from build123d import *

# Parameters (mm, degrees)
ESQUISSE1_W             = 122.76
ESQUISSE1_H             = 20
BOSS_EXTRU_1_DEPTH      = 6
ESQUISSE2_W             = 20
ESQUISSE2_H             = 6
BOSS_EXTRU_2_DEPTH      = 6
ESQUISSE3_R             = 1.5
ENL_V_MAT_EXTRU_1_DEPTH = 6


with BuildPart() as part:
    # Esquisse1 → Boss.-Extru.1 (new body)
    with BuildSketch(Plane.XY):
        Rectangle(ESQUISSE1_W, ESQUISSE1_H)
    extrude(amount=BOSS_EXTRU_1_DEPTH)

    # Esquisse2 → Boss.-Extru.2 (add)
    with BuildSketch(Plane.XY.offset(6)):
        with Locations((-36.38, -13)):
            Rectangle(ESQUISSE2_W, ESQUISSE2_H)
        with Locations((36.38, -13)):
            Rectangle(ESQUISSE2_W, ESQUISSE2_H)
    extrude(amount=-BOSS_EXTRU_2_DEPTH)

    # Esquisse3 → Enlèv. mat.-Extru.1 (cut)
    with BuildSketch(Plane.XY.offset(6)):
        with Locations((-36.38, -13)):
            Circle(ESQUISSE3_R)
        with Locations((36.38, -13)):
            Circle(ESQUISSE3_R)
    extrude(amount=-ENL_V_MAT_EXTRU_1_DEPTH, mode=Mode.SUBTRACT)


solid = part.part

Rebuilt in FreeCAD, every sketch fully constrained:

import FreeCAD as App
import Part
import Sketcher

doc = App.newDocument("Part")
params = doc.addObject("Spreadsheet::Sheet", "Params")
for row, (alias, value) in enumerate([
    ("sketch1_height", "20 mm"),
    ("sketch1_width", "122.76 mm"),
    ("pad1_length", "6 mm"),
    ("sketch2_width", "20 mm"),
    ("sketch2_height", "6 mm"),
    ("pad2_length", "6 mm"),
    ("sketch3_diameter", "3 mm"),
    ("pocket1_length", "6 mm"),
], start=1):
    params.set(f"A{row}", alias)
    params.set(f"B{row}", "=" + value)
    params.setAlias(f"B{row}", alias)

body = doc.addObject("PartDesign::Body", "Body")

# Sketch on XY plane
sketch1 = body.newObject("Sketcher::SketchObject", "Sketch")
sketch1.AttachmentSupport = (doc.getObject("XY_Plane"), [""])
sketch1.MapMode = "FlatFace"
sketch1.addGeometry([
    Part.LineSegment(App.Vector(-61, 10, 0), App.Vector(-61, -10, 0)),
    Part.LineSegment(App.Vector(-61, -10, 0), App.Vector(61, -10, 0)),
    Part.LineSegment(App.Vector(61, -10, 0), App.Vector(61, 10, 0)),
    Part.LineSegment(App.Vector(61, 10, 0), App.Vector(-61, 10, 0)),
], False)
sketch1.addConstraint([
    Sketcher.Constraint("Coincident", 0, 2, 1, 1),
    Sketcher.Constraint("Coincident", 1, 2, 2, 1),
    Sketcher.Constraint("Coincident", 2, 2, 3, 1),
    Sketcher.Constraint("Coincident", 3, 2, 0, 1),
    Sketcher.Constraint("Vertical", 0),
    Sketcher.Constraint("Horizontal", 1),
    Sketcher.Constraint("Vertical", 2),
    Sketcher.Constraint("Horizontal", 3),
    Sketcher.Constraint("Symmetric", 0, 2, 2, 2, -1, 1),
    Sketcher.Constraint("DistanceY", 0, 2, 0, 1, 20.0),
    Sketcher.Constraint("DistanceX", 1, 1, 1, 2, 122.76),
])
sketch1.setExpression("Constraints[9]", "Params.sketch1_height")
sketch1.setExpression("Constraints[10]", "Params.sketch1_width")
pad1 = body.newObject("PartDesign::Pad", "Pad")
pad1.Profile = sketch1
pad1.setExpression("Length", "Params.pad1_length")

# Sketch on XY plane
sketch2 = body.newObject("Sketcher::SketchObject", "Sketch001")
sketch2.AttachmentSupport = (doc.getObject("XY_Plane"), [""])
sketch2.MapMode = "FlatFace"
sketch2.AttachmentOffset = App.Placement(App.Vector(0, 0, 6), App.Rotation())
sketch2.addGeometry([
    Part.LineSegment(App.Vector(-46, -10, 0), App.Vector(-46, -16, 0)),  # 0
    Part.LineSegment(App.Vector(-46, -16, 0), App.Vector(-26, -16, 0)),  # 1
    Part.LineSegment(App.Vector(-26, -16, 0), App.Vector(-26, -10, 0)),  # 2
    Part.LineSegment(App.Vector(-26, -10, 0), App.Vector(-46, -10, 0)),  # 3
    Part.LineSegment(App.Vector(26, -10, 0), App.Vector(26, -16, 0)),  # 4
    Part.LineSegment(App.Vector(26, -16, 0), App.Vector(46, -16, 0)),  # 5
    Part.LineSegment(App.Vector(46, -16, 0), App.Vector(46, -10, 0)),  # 6
    Part.LineSegment(App.Vector(46, -10, 0), App.Vector(26, -10, 0)),  # 7
], False)
sketch2.addConstraint([
    Sketcher.Constraint("Coincident", 0, 2, 1, 1),
    Sketcher.Constraint("Coincident", 1, 2, 2, 1),
    Sketcher.Constraint("Coincident", 2, 2, 3, 1),
    Sketcher.Constraint("Coincident", 3, 2, 0, 1),
    Sketcher.Constraint("Coincident", 4, 2, 5, 1),
    Sketcher.Constraint("Coincident", 5, 2, 6, 1),
    Sketcher.Constraint("Coincident", 6, 2, 7, 1),
    Sketcher.Constraint("Coincident", 7, 2, 4, 1),
    Sketcher.Constraint("Vertical", 0),
    Sketcher.Constraint("Horizontal", 1),
    Sketcher.Constraint("Vertical", 2),
    Sketcher.Constraint("Horizontal", 3),
    Sketcher.Constraint("Vertical", 4),
    Sketcher.Constraint("Horizontal", 5),
    Sketcher.Constraint("Vertical", 6),
    Sketcher.Constraint("Horizontal", 7),
    Sketcher.Constraint("Symmetric", 1, 2, 4, 2, -2),
    Sketcher.Constraint("Symmetric", 3, 2, 6, 2, -2),
    Sketcher.Constraint("DistanceX", 1, 1, 1, 2, 20.0),
    Sketcher.Constraint("DistanceY", 0, 2, 0, 1, 6.0),
    Sketcher.Constraint("DistanceY", 0, 2, -1, 1, 16.0),
    Sketcher.Constraint("DistanceX", 0, 2, -1, 1, 46.38),
])
sketch2.setExpression("Constraints[18]", "Params.sketch2_width")
sketch2.setExpression("Constraints[19]", "Params.sketch2_height")
pad2 = body.newObject("PartDesign::Pad", "Pad001")
pad2.Profile = sketch2
pad2.setExpression("Length", "Params.pad2_length")
pad2.Reversed = True

# Sketch on XY plane
sketch3 = body.newObject("Sketcher::SketchObject", "Sketch002")
sketch3.AttachmentSupport = (doc.getObject("XY_Plane"), [""])
sketch3.MapMode = "FlatFace"
sketch3.AttachmentOffset = App.Placement(App.Vector(0, 0, 6), App.Rotation())
sketch3.addGeometry([
    Part.Circle(App.Vector(-36.4, -13, 0), App.Vector(0, 0, 1), 1.5),
    Part.Circle(App.Vector(36.4, -13, 0), App.Vector(0, 0, 1), 1.5),
], False)
sketch3.addConstraint([
    Sketcher.Constraint("Equal", 0, 1),
    Sketcher.Constraint("Symmetric", 0, 3, 1, 3, -2),
    Sketcher.Constraint("Diameter", 0, 3.0),
    Sketcher.Constraint("DistanceY", 0, 3, -1, 1, 13.0),
    Sketcher.Constraint("DistanceX", 0, 3, -1, 1, 36.38),
])
sketch3.setExpression("Constraints[2]", "Params.sketch3_diameter")
pocket1 = body.newObject("PartDesign::Pocket", "Pocket")
pocket1.Profile = sketch3
pocket1.setExpression("Length", "Params.pocket1_length")

doc.recompute()
